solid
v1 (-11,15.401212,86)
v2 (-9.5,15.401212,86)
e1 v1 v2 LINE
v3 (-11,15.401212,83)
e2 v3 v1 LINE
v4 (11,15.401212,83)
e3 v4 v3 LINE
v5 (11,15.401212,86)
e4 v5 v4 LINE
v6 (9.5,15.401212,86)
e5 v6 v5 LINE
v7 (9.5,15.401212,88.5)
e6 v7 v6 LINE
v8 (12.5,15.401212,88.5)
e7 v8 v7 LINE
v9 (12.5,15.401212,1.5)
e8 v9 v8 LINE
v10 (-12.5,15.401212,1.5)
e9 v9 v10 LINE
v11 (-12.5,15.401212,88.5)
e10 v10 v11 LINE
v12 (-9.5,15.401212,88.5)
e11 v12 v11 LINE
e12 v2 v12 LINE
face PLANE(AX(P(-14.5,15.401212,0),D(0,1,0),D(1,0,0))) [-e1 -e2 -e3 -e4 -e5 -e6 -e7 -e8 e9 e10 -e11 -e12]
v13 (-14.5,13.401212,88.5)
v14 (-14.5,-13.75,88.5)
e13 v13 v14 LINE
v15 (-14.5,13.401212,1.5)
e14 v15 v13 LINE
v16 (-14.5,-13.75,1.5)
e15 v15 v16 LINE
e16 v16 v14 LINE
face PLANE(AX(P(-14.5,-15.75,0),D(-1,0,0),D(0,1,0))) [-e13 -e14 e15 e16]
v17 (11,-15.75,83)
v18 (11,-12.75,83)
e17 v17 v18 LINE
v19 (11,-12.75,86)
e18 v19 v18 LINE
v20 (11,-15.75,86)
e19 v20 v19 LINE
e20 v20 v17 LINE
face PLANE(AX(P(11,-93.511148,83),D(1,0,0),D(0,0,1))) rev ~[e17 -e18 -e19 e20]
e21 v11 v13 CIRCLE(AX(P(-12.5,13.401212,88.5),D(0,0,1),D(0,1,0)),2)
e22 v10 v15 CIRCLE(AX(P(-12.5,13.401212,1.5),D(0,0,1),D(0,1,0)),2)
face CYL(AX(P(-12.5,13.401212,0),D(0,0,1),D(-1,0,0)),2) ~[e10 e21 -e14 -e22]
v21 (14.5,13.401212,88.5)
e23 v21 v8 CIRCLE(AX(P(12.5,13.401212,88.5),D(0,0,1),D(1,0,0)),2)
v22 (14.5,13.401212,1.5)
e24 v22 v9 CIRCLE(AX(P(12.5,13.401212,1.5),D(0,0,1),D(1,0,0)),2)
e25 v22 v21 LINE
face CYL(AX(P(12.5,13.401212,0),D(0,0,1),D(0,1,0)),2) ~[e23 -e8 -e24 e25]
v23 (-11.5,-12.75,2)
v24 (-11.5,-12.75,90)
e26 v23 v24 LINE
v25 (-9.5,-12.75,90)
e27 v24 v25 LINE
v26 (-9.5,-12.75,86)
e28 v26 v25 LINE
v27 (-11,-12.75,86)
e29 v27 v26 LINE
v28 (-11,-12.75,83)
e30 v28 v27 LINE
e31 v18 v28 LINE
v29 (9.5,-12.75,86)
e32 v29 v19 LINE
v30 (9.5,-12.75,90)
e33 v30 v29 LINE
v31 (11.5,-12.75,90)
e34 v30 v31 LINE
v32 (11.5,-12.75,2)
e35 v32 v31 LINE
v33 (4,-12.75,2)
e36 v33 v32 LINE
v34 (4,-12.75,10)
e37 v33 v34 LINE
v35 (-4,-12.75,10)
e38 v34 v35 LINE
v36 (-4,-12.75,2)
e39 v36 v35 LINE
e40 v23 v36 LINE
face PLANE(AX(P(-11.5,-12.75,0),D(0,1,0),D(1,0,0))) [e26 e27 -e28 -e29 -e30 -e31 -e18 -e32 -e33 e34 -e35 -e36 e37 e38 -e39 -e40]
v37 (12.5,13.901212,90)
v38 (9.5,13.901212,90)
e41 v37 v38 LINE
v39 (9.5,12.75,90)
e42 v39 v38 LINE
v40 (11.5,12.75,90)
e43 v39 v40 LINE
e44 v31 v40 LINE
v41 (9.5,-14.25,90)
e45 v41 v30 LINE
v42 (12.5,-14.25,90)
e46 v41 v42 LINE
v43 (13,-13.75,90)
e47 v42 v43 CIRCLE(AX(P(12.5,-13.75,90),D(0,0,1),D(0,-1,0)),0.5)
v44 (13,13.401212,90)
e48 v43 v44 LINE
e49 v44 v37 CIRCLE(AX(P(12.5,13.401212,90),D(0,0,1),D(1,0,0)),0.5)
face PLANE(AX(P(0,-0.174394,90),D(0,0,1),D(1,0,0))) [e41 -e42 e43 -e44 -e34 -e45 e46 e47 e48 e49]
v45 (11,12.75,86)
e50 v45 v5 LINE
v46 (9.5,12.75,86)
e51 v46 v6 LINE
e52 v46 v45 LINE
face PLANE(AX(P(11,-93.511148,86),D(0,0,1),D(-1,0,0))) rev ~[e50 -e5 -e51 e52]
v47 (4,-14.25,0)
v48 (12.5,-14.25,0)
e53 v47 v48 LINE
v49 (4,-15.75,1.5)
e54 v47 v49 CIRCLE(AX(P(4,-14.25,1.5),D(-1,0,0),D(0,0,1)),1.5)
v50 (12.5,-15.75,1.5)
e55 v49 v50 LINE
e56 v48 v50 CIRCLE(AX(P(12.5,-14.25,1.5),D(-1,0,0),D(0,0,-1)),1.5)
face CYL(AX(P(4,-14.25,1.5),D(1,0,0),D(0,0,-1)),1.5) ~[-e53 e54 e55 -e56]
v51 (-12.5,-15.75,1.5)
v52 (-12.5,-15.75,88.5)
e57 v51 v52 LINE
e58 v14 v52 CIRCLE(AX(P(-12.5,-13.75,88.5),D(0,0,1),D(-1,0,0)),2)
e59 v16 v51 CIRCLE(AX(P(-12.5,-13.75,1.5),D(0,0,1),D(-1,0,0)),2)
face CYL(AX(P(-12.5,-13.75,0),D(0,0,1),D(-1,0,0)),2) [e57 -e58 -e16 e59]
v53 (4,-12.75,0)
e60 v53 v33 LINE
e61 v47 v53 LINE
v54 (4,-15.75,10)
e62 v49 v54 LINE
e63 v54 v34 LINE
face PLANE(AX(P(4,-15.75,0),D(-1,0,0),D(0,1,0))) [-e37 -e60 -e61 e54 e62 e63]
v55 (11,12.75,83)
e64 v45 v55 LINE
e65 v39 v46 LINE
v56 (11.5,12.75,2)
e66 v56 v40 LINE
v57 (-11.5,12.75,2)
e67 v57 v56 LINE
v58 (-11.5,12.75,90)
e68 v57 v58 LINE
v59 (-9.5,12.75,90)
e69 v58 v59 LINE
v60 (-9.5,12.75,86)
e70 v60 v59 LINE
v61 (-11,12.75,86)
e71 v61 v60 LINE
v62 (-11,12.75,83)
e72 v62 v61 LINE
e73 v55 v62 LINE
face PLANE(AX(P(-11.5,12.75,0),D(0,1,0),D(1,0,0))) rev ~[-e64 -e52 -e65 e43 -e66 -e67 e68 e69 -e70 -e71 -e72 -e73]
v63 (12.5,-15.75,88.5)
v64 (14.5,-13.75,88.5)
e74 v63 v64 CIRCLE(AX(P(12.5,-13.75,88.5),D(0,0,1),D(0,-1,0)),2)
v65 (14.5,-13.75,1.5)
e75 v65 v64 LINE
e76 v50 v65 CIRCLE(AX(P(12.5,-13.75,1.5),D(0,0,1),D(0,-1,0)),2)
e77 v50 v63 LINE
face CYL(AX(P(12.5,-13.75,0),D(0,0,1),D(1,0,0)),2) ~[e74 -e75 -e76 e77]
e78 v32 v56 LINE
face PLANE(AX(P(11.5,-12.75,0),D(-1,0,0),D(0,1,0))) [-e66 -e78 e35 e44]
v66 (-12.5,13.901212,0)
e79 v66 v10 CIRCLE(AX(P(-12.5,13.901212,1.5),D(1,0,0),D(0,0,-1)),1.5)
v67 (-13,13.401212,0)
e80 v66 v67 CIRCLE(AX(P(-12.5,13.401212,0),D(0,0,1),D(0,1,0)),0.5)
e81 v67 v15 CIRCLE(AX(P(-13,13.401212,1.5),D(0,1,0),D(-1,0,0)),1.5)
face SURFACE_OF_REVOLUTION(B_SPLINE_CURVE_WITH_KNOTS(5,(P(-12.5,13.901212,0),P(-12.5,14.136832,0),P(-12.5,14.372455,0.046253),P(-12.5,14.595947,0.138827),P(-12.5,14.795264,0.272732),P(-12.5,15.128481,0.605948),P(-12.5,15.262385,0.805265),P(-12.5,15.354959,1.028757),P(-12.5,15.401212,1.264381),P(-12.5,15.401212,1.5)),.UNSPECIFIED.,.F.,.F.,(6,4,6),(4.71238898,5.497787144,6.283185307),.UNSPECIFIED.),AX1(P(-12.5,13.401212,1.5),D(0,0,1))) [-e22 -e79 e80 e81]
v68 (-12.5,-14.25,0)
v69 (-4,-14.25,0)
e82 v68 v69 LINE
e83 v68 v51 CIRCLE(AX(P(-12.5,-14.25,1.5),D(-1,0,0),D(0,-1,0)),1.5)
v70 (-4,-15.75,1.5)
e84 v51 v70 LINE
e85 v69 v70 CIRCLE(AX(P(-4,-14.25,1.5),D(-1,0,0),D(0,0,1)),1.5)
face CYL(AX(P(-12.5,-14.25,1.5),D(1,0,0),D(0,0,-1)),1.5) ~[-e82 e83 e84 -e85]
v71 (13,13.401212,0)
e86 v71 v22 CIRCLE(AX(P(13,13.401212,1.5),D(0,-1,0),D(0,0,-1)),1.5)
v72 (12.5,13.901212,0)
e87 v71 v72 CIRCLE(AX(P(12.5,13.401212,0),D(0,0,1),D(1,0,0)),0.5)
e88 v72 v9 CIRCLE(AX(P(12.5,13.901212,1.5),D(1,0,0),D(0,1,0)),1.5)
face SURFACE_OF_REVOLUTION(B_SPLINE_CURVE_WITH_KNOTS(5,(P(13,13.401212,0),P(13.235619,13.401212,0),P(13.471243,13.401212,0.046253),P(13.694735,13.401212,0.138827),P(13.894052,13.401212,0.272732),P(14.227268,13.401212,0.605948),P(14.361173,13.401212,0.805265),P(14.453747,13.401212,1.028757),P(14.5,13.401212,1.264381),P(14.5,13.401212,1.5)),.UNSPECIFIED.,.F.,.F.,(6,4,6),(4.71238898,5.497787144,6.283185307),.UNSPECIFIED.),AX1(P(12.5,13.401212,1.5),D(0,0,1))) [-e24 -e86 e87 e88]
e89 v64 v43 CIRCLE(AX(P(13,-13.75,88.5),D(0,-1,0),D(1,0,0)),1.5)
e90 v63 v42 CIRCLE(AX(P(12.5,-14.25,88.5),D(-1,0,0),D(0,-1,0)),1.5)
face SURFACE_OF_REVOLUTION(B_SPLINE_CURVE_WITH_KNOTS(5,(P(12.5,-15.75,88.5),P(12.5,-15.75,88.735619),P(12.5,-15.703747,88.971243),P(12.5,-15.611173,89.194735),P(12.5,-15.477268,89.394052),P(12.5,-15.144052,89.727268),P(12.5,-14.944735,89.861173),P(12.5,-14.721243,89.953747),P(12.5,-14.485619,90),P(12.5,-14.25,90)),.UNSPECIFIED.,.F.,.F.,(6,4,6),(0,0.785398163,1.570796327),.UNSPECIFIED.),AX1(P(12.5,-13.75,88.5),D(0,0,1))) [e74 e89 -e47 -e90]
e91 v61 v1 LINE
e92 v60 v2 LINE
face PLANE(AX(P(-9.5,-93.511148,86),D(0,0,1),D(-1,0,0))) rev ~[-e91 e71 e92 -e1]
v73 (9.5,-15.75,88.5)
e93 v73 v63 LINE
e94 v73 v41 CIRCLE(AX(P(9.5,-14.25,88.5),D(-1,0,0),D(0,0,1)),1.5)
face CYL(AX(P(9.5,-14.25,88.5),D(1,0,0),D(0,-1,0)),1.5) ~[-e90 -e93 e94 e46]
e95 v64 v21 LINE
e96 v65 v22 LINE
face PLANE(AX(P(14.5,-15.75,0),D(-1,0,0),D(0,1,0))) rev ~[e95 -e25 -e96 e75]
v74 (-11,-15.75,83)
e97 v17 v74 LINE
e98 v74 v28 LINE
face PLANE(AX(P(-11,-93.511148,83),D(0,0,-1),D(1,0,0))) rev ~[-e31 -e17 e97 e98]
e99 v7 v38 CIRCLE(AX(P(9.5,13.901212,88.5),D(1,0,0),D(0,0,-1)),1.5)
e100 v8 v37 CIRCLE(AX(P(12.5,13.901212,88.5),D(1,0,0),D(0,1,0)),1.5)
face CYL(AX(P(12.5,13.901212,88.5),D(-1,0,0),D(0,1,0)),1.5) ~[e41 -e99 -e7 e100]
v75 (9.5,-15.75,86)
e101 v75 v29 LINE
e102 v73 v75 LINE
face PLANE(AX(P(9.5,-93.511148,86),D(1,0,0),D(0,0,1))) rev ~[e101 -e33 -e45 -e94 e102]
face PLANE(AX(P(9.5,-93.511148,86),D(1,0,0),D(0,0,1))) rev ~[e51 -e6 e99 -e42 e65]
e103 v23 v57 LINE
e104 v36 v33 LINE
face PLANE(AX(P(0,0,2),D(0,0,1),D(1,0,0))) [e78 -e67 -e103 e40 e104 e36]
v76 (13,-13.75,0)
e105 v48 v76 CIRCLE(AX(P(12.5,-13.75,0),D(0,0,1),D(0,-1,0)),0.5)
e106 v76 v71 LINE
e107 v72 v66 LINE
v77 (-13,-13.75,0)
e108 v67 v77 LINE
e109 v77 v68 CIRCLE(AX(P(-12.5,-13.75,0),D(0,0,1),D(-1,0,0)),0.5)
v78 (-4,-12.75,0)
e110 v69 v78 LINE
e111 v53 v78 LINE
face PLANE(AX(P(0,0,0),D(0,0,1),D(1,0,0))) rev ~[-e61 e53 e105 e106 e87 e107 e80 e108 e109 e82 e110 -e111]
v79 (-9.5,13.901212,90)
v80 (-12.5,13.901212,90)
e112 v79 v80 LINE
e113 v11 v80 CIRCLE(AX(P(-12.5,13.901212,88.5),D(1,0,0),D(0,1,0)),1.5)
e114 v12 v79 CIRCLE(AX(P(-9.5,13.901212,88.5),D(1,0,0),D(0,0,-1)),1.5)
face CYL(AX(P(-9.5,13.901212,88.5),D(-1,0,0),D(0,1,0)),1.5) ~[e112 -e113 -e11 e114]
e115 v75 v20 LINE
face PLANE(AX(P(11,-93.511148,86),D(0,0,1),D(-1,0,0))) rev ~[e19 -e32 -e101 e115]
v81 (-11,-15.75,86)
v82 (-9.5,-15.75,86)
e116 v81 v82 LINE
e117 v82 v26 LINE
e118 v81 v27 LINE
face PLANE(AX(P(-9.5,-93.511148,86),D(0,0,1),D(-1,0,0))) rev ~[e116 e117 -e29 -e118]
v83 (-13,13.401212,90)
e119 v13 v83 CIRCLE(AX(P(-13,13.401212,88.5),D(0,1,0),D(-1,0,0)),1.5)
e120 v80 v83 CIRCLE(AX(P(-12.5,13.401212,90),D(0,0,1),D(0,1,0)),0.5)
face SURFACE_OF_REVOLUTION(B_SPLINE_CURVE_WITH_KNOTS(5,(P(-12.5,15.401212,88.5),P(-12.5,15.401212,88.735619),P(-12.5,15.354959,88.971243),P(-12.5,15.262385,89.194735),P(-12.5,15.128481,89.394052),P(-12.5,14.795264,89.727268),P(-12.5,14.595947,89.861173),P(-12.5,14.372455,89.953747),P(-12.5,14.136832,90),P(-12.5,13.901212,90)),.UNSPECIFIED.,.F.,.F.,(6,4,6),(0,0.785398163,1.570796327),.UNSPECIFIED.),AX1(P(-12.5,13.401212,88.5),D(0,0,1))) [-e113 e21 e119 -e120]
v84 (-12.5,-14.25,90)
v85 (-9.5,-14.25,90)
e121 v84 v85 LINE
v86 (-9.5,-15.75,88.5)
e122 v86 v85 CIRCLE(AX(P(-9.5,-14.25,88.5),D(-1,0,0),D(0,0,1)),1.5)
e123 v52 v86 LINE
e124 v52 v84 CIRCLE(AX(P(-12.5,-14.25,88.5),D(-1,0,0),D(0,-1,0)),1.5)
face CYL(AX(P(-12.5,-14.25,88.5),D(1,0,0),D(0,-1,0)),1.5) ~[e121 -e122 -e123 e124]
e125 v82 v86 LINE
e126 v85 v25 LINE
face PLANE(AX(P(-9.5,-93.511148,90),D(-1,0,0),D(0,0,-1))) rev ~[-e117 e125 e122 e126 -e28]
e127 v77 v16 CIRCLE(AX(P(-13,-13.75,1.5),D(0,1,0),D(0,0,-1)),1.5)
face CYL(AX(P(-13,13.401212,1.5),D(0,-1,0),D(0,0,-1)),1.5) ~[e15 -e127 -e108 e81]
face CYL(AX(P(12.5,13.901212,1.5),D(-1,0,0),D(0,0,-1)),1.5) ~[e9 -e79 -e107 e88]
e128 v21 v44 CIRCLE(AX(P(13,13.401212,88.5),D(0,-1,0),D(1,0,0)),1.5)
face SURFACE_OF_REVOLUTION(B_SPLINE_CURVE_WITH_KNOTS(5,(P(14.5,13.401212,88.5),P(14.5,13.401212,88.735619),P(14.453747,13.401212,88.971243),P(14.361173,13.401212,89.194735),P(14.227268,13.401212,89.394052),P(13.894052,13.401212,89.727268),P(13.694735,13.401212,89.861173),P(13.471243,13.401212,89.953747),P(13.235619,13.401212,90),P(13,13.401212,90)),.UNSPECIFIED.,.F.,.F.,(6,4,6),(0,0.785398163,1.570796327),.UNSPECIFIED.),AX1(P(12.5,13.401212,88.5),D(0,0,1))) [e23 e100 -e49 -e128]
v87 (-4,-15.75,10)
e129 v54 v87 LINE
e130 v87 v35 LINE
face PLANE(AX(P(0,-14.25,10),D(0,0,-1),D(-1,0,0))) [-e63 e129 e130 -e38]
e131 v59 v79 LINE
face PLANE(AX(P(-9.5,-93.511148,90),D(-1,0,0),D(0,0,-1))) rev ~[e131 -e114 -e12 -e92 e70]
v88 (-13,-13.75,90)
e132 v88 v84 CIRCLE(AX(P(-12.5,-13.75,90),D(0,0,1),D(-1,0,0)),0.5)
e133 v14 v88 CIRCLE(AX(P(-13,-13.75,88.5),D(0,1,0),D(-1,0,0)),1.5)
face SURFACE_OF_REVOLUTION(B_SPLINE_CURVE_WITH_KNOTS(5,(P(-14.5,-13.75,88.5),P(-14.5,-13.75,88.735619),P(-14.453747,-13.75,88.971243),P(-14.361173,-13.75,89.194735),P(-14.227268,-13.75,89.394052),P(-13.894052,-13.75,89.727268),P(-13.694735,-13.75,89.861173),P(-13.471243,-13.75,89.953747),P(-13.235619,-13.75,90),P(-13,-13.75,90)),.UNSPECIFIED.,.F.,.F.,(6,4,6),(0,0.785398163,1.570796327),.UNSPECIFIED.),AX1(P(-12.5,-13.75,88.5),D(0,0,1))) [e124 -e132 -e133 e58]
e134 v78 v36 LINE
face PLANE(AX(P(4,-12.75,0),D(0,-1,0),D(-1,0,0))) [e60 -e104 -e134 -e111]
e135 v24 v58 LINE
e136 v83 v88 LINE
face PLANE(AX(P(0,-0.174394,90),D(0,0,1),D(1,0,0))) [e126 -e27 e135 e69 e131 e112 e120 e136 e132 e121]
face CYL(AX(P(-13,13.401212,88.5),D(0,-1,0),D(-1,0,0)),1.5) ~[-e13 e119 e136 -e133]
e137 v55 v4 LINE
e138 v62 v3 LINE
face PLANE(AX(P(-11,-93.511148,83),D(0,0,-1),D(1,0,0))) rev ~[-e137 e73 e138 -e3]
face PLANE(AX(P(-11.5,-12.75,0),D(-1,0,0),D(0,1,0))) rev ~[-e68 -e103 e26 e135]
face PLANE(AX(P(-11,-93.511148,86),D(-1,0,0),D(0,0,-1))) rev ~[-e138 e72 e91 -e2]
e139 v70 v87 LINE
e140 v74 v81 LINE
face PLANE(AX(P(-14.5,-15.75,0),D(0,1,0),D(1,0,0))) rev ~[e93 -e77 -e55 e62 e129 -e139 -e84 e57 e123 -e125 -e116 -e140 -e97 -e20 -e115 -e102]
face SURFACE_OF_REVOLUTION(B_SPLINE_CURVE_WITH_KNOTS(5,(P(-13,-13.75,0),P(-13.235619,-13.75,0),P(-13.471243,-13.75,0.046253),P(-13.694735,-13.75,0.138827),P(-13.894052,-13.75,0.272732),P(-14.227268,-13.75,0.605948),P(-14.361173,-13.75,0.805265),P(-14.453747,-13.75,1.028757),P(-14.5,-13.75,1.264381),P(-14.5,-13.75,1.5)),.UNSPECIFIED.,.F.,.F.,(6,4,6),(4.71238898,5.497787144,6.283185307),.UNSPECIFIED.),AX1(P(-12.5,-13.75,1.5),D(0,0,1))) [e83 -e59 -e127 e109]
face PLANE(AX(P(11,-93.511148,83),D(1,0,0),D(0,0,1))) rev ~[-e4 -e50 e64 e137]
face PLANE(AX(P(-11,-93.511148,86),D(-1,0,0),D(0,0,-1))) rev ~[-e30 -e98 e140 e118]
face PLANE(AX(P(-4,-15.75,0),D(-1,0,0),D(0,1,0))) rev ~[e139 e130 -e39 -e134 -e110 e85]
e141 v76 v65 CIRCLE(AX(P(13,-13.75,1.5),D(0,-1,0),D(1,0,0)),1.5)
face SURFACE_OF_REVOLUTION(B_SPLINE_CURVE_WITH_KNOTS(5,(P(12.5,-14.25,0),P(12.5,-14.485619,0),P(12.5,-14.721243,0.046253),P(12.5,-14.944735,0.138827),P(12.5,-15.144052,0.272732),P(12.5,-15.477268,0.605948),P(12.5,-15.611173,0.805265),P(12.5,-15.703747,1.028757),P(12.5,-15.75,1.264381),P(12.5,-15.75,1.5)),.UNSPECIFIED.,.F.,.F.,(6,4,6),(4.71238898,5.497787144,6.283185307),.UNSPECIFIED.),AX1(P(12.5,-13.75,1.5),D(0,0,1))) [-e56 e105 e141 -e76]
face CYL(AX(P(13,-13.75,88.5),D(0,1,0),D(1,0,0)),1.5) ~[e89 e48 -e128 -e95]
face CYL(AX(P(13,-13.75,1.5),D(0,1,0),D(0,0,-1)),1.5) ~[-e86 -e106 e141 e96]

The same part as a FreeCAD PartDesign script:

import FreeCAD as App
import Part
import Sketcher
Q = App.Units.Quantity


def edges_at(feature, points):
    """Names of the edges that pass closest to the given points."""
    edges = feature.Shape.Edges
    near = lambda p: min(range(len(edges)), key=lambda i: edges[i].distToShape(Part.Vertex(*p))[0])
    return sorted({f"Edge{near(p) + 1}" for p in points})


def add_polygon(sketch, points):
    """Adds a closed chain of lines whose ends are joined by coincident constraints."""
    first, n = sketch.GeometryCount, len(points)
    for a, b in zip(points, points[1:] + points[:1]):
        sketch.addGeometry(Part.LineSegment(App.Vector(*a, 0), App.Vector(*b, 0)), False)
    for i in range(n):
        sketch.addConstraint(Sketcher.Constraint("Coincident", first + i, 2, first + (i + 1) % n, 1))

doc = App.newDocument("Part")
body = doc.addObject("PartDesign::Body", "Body")

sketch1 = body.newObject("Sketcher::SketchObject", "Sketch")
sketch1.AttachmentSupport = (doc.getObject("XY_Plane"), [""])
sketch1.MapMode = "FlatFace"
add_polygon(sketch1, [(-14, 15), (-14, -16), (14, -16), (14, 15)])
add_polygon(sketch1, [(12, -13), (-12, -13), (-12, 13), (12, 13)])
sketch1.addConstraint(Sketcher.Constraint("Vertical", 0))
sketch1.addConstraint(Sketcher.Constraint("Horizontal", 1))
sketch1.addConstraint(Sketcher.Constraint("Vertical", 2))
sketch1.addConstraint(Sketcher.Constraint("Horizontal", 3))
sketch1.addConstraint(Sketcher.Constraint("Horizontal", 4))
sketch1.addConstraint(Sketcher.Constraint("Vertical", 5))
sketch1.addConstraint(Sketcher.Constraint("Horizontal", 6))
sketch1.addConstraint(Sketcher.Constraint("Vertical", 7))
sketch1.addConstraint(Sketcher.Constraint("Symmetric", 4, 2, 6, 2, -1, 1))
sketch1.addConstraint(Sketcher.Constraint("DistanceX", 1, 1, 1, 2, Q("29 mm")))
sketch1.addConstraint(Sketcher.Constraint("DistanceX", 4, 2, 4, 1, Q("23 mm")))
sketch1.addConstraint(Sketcher.Constraint("DistanceY", 5, 1, 5, 2, Q("25.5 mm")))
sketch1.addConstraint(Sketcher.Constraint("DistanceX", 0, 2, 4, 2, Q("3 mm")))
sketch1.addConstraint(Sketcher.Constraint("DistanceY", 0, 2, 4, 2, Q("3 mm")))
sketch1.addConstraint(Sketcher.Constraint("DistanceY", 0, 2, 0, 1, Q("31.151212 mm")))
pad1 = body.newObject("PartDesign::Pad", "Pad")
pad1.Profile = sketch1
pad1.Length = 90

sketch2 = body.newObject("Sketcher::SketchObject", "Sketch001")
sketch2.AttachmentSupport = (doc.getObject("XY_Plane"), [""])
sketch2.MapMode = "FlatFace"
add_polygon(sketch2, [(-12, 13), (-12, -13), (12, -13), (12, 13)])
sketch2.addConstraint(Sketcher.Constraint("Vertical", 0))
sketch2.addConstraint(Sketcher.Constraint("Horizontal", 1))
sketch2.addConstraint(Sketcher.Constraint("Vertical", 2))
sketch2.addConstraint(Sketcher.Constraint("Horizontal", 3))
sketch2.addConstraint(Sketcher.Constraint("Symmetric", 0, 2, 2, 2, -1, 1))
sketch2.addConstraint(Sketcher.Constraint("DistanceX", 1, 1, 1, 2, Q("23 mm")))
sketch2.addConstraint(Sketcher.Constraint("DistanceY", 0, 2, 0, 1, Q("25.5 mm")))
pad2 = body.newObject("PartDesign::Pad", "Pad001")
pad2.Profile = sketch2
pad2.Length = 2

sketch3 = body.newObject("Sketcher::SketchObject", "Sketch002")
sketch3.AttachmentSupport = (doc.getObject("XY_Plane"), [""])
sketch3.MapMode = "FlatFace"
add_polygon(sketch3, [(4, -12.8), (4, -15.8), (-4, -15.8), (-4, -12.8)])
sketch3.addConstraint(Sketcher.Constraint("Vertical", 0))
sketch3.addConstraint(Sketcher.Constraint("Horizontal", 1))
sketch3.addConstraint(Sketcher.Constraint("Vertical", 2))
sketch3.addConstraint(Sketcher.Constraint("Horizontal", 3))
sketch3.addConstraint(Sketcher.Constraint("DistanceX", 1, 2, 1, 1, Q("8 mm")))
sketch3.addConstraint(Sketcher.Constraint("DistanceY", 0, 2, 0, 1, Q("3 mm")))
sketch3.addConstraint(Sketcher.Constraint("DistanceX", -1, 1, 0, 2, Q("4 mm")))
sketch3.addConstraint(Sketcher.Constraint("DistanceY", 0, 2, -1, 1, Q("15.75 mm")))
pocket1 = body.newObject("PartDesign::Pocket", "Pocket")
pocket1.Profile = sketch3
pocket1.Length = 10
pocket1.Reversed = True

sketch4 = body.newObject("Sketcher::SketchObject", "Sketch003")
sketch4.AttachmentSupport = (doc.getObject("XZ_Plane"), [""])
sketch4.MapMode = "FlatFace"
add_polygon(sketch4, [(-9.5, 86), (-9.5, 90), (9.5, 90), (9.5, 86), (11, 86), (11, 83), (-11, 83), (-11, 86)])
sketch4.addConstraint(Sketcher.Constraint("Vertical", 0))
sketch4.addConstraint(Sketcher.Constraint("Horizontal", 1))
sketch4.addConstraint(Sketcher.Constraint("Vertical", 2))
sketch4.addConstraint(Sketcher.Constraint("Horizontal", 3))
sketch4.addConstraint(Sketcher.Constraint("Vertical", 4))
sketch4.addConstraint(Sketcher.Constraint("Horizontal", 5))
sketch4.addConstraint(Sketcher.Constraint("Vertical", 6))
sketch4.addConstraint(Sketcher.Constraint("Horizontal", 7))
sketch4.addConstraint(Sketcher.Constraint("Symmetric", 3, 2, 6, 2, -2))
sketch4.addConstraint(Sketcher.Constraint("Equal", 3, 7))
sketch4.addConstraint(Sketcher.Constraint("DistanceX", 1, 1, 1, 2, Q("19 mm")))
sketch4.addConstraint(Sketcher.Constraint("DistanceX", 5, 2, 5, 1, Q("22 mm")))
sketch4.addConstraint(Sketcher.Constraint("DistanceY", 0, 1, 0, 2, Q("4 mm")))
sketch4.addConstraint(Sketcher.Constraint("DistanceY", 4, 2, 4, 1, Q("3 mm")))
sketch4.addConstraint(Sketcher.Constraint("DistanceY", -1, 1, 0, 2, Q("90 mm")))
pocket2 = body.newObject("PartDesign::Pocket", "Pocket001")
pocket2.Profile = sketch4
pocket2.Type = "ThroughAll"
pocket2.Midplane = True
doc.recompute()

fillet = body.newObject("PartDesign::Fillet", "Fillet")
fillet.Base = (pocket2, edges_at(pocket2, [
    (14.5, 15.401, 45),
    (14.5, -15.75, 45),
    (-14.5, -15.75, 45),
    (-14.5, 15.401, 45),
]))
fillet.Radius = 2
doc.recompute()

fillet2 = body.newObject("PartDesign::Fillet", "Fillet001")
fillet2.Base = (fillet, edges_at(fillet, [
    (-11, -15.75, 90),
    (-8.25, -15.75, 0),
    (-14.5, -0.174, 0),
    (0, 15.401, 0),
    (14.5, -0.174, 0),
    (-13.914, 14.815, 0),
    (13.914, 14.815, 0),
    (13.914, -15.164, 0),
    (-13.914, -15.164, 0),
    (-14.5, -0.174, 90),
    (-13.914, 14.815, 90),
    (-13.914, -15.164, 90),
    (14.5, -0.174, 90),
    (11, 15.401, 90),
    (13.914, 14.815, 90),
    (13.914, -15.164, 90),
    (8.25, -15.75, 0),
    (11, -15.75, 90),
    (-11, 15.401, 90),
]))
fillet2.Radius = 1.5

doc.recompute()
